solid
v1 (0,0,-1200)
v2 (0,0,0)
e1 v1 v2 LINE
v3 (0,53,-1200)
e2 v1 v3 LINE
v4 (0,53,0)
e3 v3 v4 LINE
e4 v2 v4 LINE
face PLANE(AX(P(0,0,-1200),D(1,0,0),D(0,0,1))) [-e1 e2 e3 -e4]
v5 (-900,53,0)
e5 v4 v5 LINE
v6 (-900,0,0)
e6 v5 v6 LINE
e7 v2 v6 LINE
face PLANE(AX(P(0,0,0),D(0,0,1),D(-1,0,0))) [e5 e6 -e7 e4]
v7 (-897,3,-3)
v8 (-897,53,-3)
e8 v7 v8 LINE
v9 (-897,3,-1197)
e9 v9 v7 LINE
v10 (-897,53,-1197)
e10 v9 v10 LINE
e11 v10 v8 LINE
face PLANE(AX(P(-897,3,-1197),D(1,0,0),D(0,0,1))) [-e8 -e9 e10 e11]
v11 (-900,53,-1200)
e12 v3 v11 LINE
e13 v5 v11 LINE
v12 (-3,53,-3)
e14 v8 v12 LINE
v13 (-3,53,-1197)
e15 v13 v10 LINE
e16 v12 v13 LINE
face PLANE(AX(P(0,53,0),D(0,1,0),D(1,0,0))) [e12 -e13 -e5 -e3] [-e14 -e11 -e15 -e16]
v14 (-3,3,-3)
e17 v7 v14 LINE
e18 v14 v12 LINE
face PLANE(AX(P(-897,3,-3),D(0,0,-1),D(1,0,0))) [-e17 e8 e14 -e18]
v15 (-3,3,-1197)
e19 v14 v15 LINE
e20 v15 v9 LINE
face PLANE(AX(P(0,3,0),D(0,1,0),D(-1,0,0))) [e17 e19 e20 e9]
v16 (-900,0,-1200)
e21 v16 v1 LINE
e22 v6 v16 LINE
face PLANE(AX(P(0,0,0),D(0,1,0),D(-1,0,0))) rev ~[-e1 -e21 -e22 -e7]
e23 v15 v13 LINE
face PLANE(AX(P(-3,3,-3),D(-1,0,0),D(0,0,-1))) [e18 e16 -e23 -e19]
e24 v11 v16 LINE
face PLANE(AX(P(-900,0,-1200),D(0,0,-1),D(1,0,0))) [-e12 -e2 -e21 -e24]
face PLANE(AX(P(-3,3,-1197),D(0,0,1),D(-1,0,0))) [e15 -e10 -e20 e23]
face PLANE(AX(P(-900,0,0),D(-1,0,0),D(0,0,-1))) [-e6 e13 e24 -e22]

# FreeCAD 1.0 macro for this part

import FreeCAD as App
import Part
import Sketcher
from FreeCAD import Vector
Q = App.Units.Quantity

doc = App.newDocument("Part")
body = doc.addObject("PartDesign::Body", "Body")

# Sketch on XZ plane
sketch1 = body.newObject("Sketcher::SketchObject", "Sketch")
sketch1.AttachmentSupport = (doc.getObject("XZ_Plane"), [""])
sketch1.MapMode = "FlatFace"
sketch1.addGeometry(Part.LineSegment(Vector(-900, 0, 0), Vector(0, 0, 0)), False)
sketch1.addGeometry(Part.LineSegment(Vector(0, 0, 0), Vector(0, -1200, 0)), False)
sketch1.addGeometry(Part.LineSegment(Vector(0, -1200, 0), Vector(-900, -1200, 0)), False)
sketch1.addGeometry(Part.LineSegment(Vector(-900, -1200, 0), Vector(-900, 0, 0)), False)
sketch1.addConstraint(Sketcher.Constraint("Coincident", 0, 2, 1, 1))
sketch1.addConstraint(Sketcher.Constraint("Coincident", 1, 2, 2, 1))
sketch1.addConstraint(Sketcher.Constraint("Coincident", 2, 2, 3, 1))
sketch1.addConstraint(Sketcher.Constraint("Coincident", 3, 2, 0, 1))
sketch1.addConstraint(Sketcher.Constraint("Horizontal", 0))
sketch1.addConstraint(Sketcher.Constraint("Vertical", 1))
sketch1.addConstraint(Sketcher.Constraint("Horizontal", 2))
sketch1.addConstraint(Sketcher.Constraint("Vertical", 3))
sketch1.addConstraint(Sketcher.Constraint("Coincident", 0, 2, -1, 1))
sketch1.addConstraint(Sketcher.Constraint("DistanceX", 0, 1, 0, 2, Q("900 mm")))
sketch1.addConstraint(Sketcher.Constraint("DistanceY", 1, 2, 1, 1, Q("1200 mm")))
pad1 = body.newObject("PartDesign::Pad", "Pad")
pad1.Profile = sketch1
pad1.Length = 3
pad1.Reversed = True

# Sketch on XZ plane
sketch2 = body.newObject("Sketcher::SketchObject", "Sketch001")
sketch2.AttachmentSupport = (doc.getObject("XZ_Plane"), [""])
sketch2.MapMode = "FlatFace"
sketch2.AttachmentOffset = App.Placement(Vector(0, 0, -3), App.Rotation())
sketch2.addGeometry(Part.LineSegment(Vector(0, 0, 0), Vector(0, -1200, 0)), False)
sketch2.addGeometry(Part.LineSegment(Vector(0, -1200, 0), Vector(-900, -1200, 0)), False)
sketch2.addGeometry(Part.LineSegment(Vector(-900, -1200, 0), Vector(-900, 0, 0)), False)
sketch2.addGeometry(Part.LineSegment(Vector(-900, 0, 0), Vector(0, 0, 0)), False)
sketch2.addGeometry(Part.LineSegment(Vector(-897, -3, 0), Vector(-897, -1197, 0)), False)
sketch2.addGeometry(Part.LineSegment(Vector(-897, -1197, 0), Vector(-3, -1197, 0)), False)
sketch2.addGeometry(Part.LineSegment(Vector(-3, -1197, 0), Vector(-3, -3, 0)), False)
sketch2.addGeometry(Part.LineSegment(Vector(-3, -3, 0), Vector(-897, -3, 0)), False)
sketch2.addConstraint(Sketcher.Constraint("Coincident", 0, 2, 1, 1))
sketch2.addConstraint(Sketcher.Constraint("Coincident", 1, 2, 2, 1))
sketch2.addConstraint(Sketcher.Constraint("Coincident", 2, 2, 3, 1))
sketch2.addConstraint(Sketcher.Constraint("Coincident", 3, 2, 0, 1))
sketch2.addConstraint(Sketcher.Constraint("Coincident", 4, 2, 5, 1))
sketch2.addConstraint(Sketcher.Constraint("Coincident", 5, 2, 6, 1))
sketch2.addConstraint(Sketcher.Constraint("Coincident", 6, 2, 7, 1))
sketch2.addConstraint(Sketcher.Constraint("Coincident", 7, 2, 4, 1))
sketch2.addConstraint(Sketcher.Constraint("Vertical", 0))
sketch2.addConstraint(Sketcher.Constraint("Horizontal", 1))
sketch2.addConstraint(Sketcher.Constraint("Vertical", 2))
sketch2.addConstraint(Sketcher.Constraint("Horizontal", 3))
sketch2.addConstraint(Sketcher.Constraint("Vertical", 4))
sketch2.addConstraint(Sketcher.Constraint("Horizontal", 5))
sketch2.addConstraint(Sketcher.Constraint("Vertical", 6))
sketch2.addConstraint(Sketcher.Constraint("Horizontal", 7))
sketch2.addConstraint(Sketcher.Constraint("Coincident", 3, 2, -1, 1))
sketch2.addConstraint(Sketcher.Constraint("DistanceX", 5, 2, -1, 1, Q("3 mm")))
sketch2.addConstraint(Sketcher.Constraint("DistanceY", 6, 2, -1, 1, Q("3 mm")))
sketch2.addConstraint(Sketcher.Constraint("DistanceX", 1, 2, 4, 2, Q("3 mm")))
sketch2.addConstraint(Sketcher.Constraint("DistanceY", 1, 2, 4, 2, Q("3 mm")))
sketch2.addConstraint(Sketcher.Constraint("DistanceX", 1, 2, 1, 1, Q("900 mm")))
sketch2.addConstraint(Sketcher.Constraint("DistanceY", 0, 2, 0, 1, Q("1200 mm")))
pad2 = body.newObject("PartDesign::Pad", "Pad001")
pad2.Profile = sketch2
pad2.Length = 50
pad2.Reversed = True

doc.recompute()
